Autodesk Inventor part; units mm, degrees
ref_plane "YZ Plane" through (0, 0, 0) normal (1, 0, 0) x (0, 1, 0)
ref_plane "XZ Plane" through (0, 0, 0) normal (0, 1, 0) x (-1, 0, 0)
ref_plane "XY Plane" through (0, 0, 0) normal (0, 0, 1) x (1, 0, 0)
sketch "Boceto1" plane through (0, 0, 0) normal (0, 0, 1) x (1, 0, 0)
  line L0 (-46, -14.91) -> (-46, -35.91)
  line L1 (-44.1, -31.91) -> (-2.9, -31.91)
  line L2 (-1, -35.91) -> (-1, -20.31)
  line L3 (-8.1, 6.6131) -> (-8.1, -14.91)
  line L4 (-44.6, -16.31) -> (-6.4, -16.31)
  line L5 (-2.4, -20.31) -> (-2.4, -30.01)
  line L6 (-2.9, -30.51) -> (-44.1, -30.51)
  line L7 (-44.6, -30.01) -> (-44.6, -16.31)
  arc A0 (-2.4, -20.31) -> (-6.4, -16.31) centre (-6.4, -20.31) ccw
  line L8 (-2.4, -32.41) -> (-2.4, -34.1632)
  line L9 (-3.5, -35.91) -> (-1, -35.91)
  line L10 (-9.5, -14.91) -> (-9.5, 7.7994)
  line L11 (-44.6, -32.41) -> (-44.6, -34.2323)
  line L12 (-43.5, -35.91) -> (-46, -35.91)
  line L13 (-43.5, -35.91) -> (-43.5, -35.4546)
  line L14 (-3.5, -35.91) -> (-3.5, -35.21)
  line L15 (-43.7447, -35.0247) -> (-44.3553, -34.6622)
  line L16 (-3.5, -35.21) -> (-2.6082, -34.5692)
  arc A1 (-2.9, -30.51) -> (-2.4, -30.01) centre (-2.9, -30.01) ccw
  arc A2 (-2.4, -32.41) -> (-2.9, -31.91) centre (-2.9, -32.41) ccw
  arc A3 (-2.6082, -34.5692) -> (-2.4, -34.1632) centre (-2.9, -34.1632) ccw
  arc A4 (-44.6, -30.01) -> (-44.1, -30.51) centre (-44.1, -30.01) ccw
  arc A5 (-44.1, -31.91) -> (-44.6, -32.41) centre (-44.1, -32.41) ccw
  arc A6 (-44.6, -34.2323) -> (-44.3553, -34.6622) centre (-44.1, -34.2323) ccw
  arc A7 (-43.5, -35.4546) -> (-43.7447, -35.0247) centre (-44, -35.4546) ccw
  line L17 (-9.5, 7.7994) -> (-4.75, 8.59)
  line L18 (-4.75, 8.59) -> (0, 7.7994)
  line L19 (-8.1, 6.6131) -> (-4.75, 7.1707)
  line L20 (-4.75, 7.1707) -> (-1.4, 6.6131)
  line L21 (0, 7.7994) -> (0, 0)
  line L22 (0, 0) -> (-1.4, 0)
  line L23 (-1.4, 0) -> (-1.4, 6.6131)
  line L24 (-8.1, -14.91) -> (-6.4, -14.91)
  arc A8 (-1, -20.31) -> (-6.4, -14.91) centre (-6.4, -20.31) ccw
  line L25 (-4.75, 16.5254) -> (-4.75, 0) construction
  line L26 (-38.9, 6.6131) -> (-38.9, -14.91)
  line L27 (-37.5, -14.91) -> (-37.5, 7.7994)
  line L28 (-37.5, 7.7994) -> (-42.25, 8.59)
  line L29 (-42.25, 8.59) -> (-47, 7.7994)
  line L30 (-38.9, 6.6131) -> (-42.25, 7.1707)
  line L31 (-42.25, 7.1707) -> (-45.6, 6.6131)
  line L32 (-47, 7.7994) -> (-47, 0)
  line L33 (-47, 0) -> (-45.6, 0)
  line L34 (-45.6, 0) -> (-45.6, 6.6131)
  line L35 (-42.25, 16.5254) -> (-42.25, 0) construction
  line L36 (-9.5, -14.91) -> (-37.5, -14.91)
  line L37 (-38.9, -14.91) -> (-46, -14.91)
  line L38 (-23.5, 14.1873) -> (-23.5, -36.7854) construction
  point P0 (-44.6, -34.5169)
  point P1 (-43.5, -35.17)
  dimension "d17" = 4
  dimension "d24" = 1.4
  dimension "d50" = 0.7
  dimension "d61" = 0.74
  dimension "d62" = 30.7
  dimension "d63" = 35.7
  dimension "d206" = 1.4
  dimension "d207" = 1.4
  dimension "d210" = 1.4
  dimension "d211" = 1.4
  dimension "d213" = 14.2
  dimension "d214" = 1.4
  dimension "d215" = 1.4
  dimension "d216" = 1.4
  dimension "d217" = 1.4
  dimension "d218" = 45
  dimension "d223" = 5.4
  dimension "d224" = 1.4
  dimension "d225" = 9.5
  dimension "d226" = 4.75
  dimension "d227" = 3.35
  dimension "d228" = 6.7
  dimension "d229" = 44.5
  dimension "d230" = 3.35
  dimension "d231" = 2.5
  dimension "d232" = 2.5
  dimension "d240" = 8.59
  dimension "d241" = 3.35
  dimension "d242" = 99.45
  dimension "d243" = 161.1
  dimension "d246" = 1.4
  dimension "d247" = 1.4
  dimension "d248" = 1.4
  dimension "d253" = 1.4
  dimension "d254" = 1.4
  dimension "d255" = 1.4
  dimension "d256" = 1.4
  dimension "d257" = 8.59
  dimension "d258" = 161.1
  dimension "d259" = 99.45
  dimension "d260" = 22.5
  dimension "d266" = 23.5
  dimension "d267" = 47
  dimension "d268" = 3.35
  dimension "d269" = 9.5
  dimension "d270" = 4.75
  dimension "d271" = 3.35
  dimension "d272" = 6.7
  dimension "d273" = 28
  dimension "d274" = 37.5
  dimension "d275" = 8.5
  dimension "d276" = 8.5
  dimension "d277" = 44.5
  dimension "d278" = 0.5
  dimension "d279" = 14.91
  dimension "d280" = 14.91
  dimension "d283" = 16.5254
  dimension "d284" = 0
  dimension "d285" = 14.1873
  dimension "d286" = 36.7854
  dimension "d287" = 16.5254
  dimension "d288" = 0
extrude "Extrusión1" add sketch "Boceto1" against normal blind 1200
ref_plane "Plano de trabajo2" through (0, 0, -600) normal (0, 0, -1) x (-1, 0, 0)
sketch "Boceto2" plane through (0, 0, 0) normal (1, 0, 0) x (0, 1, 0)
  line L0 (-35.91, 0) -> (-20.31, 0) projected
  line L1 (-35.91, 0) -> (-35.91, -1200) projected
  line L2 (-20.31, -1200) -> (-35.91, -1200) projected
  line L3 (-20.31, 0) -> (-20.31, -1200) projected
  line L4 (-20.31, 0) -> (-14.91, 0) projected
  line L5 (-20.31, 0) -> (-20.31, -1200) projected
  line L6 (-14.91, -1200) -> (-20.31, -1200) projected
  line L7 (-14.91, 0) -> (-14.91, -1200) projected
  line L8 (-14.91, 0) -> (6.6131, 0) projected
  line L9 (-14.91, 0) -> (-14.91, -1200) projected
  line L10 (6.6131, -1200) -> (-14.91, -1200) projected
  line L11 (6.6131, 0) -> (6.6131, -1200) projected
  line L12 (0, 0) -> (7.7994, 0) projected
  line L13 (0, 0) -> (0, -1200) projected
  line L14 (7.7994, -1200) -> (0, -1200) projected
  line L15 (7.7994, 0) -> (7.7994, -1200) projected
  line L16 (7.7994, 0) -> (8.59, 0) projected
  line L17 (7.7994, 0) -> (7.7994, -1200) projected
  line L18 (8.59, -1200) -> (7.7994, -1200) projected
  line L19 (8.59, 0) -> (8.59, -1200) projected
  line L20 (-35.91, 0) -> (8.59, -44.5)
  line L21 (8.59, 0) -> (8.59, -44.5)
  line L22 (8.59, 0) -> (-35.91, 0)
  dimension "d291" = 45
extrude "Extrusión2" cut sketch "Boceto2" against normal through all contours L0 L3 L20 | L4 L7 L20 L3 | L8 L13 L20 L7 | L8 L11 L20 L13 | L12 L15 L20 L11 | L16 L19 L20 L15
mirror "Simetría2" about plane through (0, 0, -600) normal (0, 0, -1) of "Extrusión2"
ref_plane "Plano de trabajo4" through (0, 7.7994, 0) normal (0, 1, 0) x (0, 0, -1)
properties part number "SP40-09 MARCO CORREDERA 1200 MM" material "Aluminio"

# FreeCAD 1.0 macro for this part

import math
import FreeCAD as App
import Part
import Sketcher

V = App.Vector
Q = App.Units.Quantity

doc = App.newDocument("Part")
body = doc.addObject("PartDesign::Body", "Body")

# Sketch on XY plane
sketch1 = body.newObject("Sketcher::SketchObject", "Sketch")
sketch1.AttachmentSupport = (doc.getObject("XY_Plane"), [""])
sketch1.MapMode = "FlatFace"
sketch1.addGeometry(Part.LineSegment(V(-38.9, -14.91, 0), V(-46, -14.91, 0)), False)
sketch1.addGeometry(Part.LineSegment(V(-46, -14.91, 0), V(-46, -35.91, 0)), False)
sketch1.addGeometry(Part.LineSegment(V(-46, -35.91, 0), V(-43.5, -35.91, 0)), False)
sketch1.addGeometry(Part.LineSegment(V(-43.5, -35.91, 0), V(-43.5, -35.45, 0)), False)
sketch1.addGeometry(Part.ArcOfCircle(Part.Circle(V(-44, -35.45, 0), V(0, 0, 1), 0.5), math.radians(0), math.radians(59)), False)
sketch1.addGeometry(Part.LineSegment(V(-43.74, -35.02, 0), V(-44.36, -34.66, 0)), False)
sketch1.addGeometry(Part.ArcOfCircle(Part.Circle(V(-44.1, -34.23, 0), V(0, 0, 1), 0.5), math.radians(180), math.radians(239)), False)
sketch1.addGeometry(Part.LineSegment(V(-44.6, -34.23, 0), V(-44.6, -32.41, 0)), False)
sketch1.addGeometry(Part.ArcOfCircle(Part.Circle(V(-44.1, -32.41, 0), V(0, 0, 1), 0.5), math.radians(90), math.radians(180)), False)
sketch1.addGeometry(Part.LineSegment(V(-44.1, -31.91, 0), V(-2.9, -31.91, 0)), False)
sketch1.addGeometry(Part.ArcOfCircle(Part.Circle(V(-2.9, -32.41, 0), V(0, 0, 1), 0.5), math.radians(0), math.radians(90)), False)
sketch1.addGeometry(Part.LineSegment(V(-2.4, -32.41, 0), V(-2.4, -34.16, 0)), False)
sketch1.addGeometry(Part.ArcOfCircle(Part.Circle(V(-2.9, -34.16, 0), V(0, 0, 1), 0.5), math.radians(-54), math.radians(0)), False)
sketch1.addGeometry(Part.LineSegment(V(-2.61, -34.57, 0), V(-3.5, -35.21, 0)), False)
sketch1.addGeometry(Part.LineSegment(V(-3.5, -35.21, 0), V(-3.5, -35.91, 0)), False)
sketch1.addGeometry(Part.LineSegment(V(-3.5, -35.91, 0), V(-1, -35.91, 0)), False)
sketch1.addGeometry(Part.LineSegment(V(-1, -35.91, 0), V(-1, -20.31, 0)), False)
sketch1.addGeometry(Part.ArcOfCircle(Part.Circle(V(-6.4, -20.31, 0), V(0, 0, 1), 5.4), math.radians(0), math.radians(90)), False)
sketch1.addGeometry(Part.LineSegment(V(-6.4, -14.91, 0), V(-8.1, -14.91, 0)), False)
sketch1.addGeometry(Part.LineSegment(V(-8.1, -14.91, 0), V(-8.1, 6.61, 0)), False)
sketch1.addGeometry(Part.LineSegment(V(-8.1, 6.61, 0), V(-4.75, 7.17, 0)), False)
sketch1.addGeometry(Part.LineSegment(V(-4.75, 7.17, 0), V(-1.4, 6.61, 0)), False)
sketch1.addGeometry(Part.LineSegment(V(-1.4, 6.61, 0), V(-1.4, 0, 0)), False)
sketch1.addGeometry(Part.LineSegment(V(-1.4, 0, 0), V(0, 0, 0)), False)
sketch1.addGeometry(Part.LineSegment(V(0, 0, 0), V(0, 7.8, 0)), False)
sketch1.addGeometry(Part.LineSegment(V(0, 7.8, 0), V(-4.75, 8.59, 0)), False)
sketch1.addGeometry(Part.LineSegment(V(-4.75, 8.59, 0), V(-9.5, 7.8, 0)), False)
sketch1.addGeometry(Part.LineSegment(V(-9.5, 7.8, 0), V(-9.5, -14.91, 0)), False)
sketch1.addGeometry(Part.LineSegment(V(-9.5, -14.91, 0), V(-37.5, -14.91, 0)), False)
sketch1.addGeometry(Part.LineSegment(V(-37.5, -14.91, 0), V(-37.5, 7.8, 0)), False)
sketch1.addGeometry(Part.LineSegment(V(-37.5, 7.8, 0), V(-42.25, 8.59, 0)), False)
sketch1.addGeometry(Part.LineSegment(V(-42.25, 8.59, 0), V(-47, 7.8, 0)), False)
sketch1.addGeometry(Part.LineSegment(V(-47, 7.8, 0), V(-47, 0, 0)), False)
sketch1.addGeometry(Part.LineSegment(V(-47, 0, 0), V(-45.6, 0, 0)), False)
sketch1.addGeometry(Part.LineSegment(V(-45.6, 0, 0), V(-45.6, 6.61, 0)), False)
sketch1.addGeometry(Part.LineSegment(V(-45.6, 6.61, 0), V(-42.25, 7.17, 0)), False)
sketch1.addGeometry(Part.LineSegment(V(-42.25, 7.17, 0), V(-38.9, 6.61, 0)), False)
sketch1.addGeometry(Part.LineSegment(V(-38.9, 6.61, 0), V(-38.9, -14.91, 0)), False)
sketch1.addGeometry(Part.LineSegment(V(-44.6, -30.01, 0), V(-44.6, -16.31, 0)), False)
sketch1.addGeometry(Part.LineSegment(V(-44.6, -16.31, 0), V(-6.4, -16.31, 0)), False)
sketch1.addGeometry(Part.ArcOfCircle(Part.Circle(V(-6.4, -20.31, 0), V(0, 0, 1), 4), math.radians(0), math.radians(90)), False)
sketch1.addGeometry(Part.LineSegment(V(-2.4, -20.31, 0), V(-2.4, -30.01, 0)), False)
sketch1.addGeometry(Part.ArcOfCircle(Part.Circle(V(-2.9, -30.01, 0), V(0, 0, 1), 0.5), math.radians(-90), math.radians(0)), False)
sketch1.addGeometry(Part.LineSegment(V(-2.9, -30.51, 0), V(-44.1, -30.51, 0)), False)
sketch1.addGeometry(Part.ArcOfCircle(Part.Circle(V(-44.1, -30.01, 0), V(0, 0, 1), 0.5), math.radians(180), math.radians(270)), False)
sketch1.addConstraint(Sketcher.Constraint("Coincident", 0, 2, 1, 1))
sketch1.addConstraint(Sketcher.Constraint("Coincident", 1, 2, 2, 1))
sketch1.addConstraint(Sketcher.Constraint("Coincident", 2, 2, 3, 1))
sketch1.addConstraint(Sketcher.Constraint("Tangent", 3, 2, 4, 1))
sketch1.addConstraint(Sketcher.Constraint("Tangent", 4, 2, 5, 1))
sketch1.addConstraint(Sketcher.Constraint("Tangent", 5, 2, 6, 2))
sketch1.addConstraint(Sketcher.Constraint("Tangent", 6, 1, 7, 1))
sketch1.addConstraint(Sketcher.Constraint("Tangent", 7, 2, 8, 2))
sketch1.addConstraint(Sketcher.Constraint("Tangent", 8, 1, 9, 1))
sketch1.addConstraint(Sketcher.Constraint("Tangent", 9, 2, 10, 2))
sketch1.addConstraint(Sketcher.Constraint("Tangent", 10, 1, 11, 1))
sketch1.addConstraint(Sketcher.Constraint("Tangent", 11, 2, 12, 2))
sketch1.addConstraint(Sketcher.Constraint("Tangent", 12, 1, 13, 1))
sketch1.addConstraint(Sketcher.Constraint("Coincident", 13, 2, 14, 1))
sketch1.addConstraint(Sketcher.Constraint("Coincident", 14, 2, 15, 1))
sketch1.addConstraint(Sketcher.Constraint("Coincident", 15, 2, 16, 1))
sketch1.addConstraint(Sketcher.Constraint("Tangent", 16, 2, 17, 1))
sketch1.addConstraint(Sketcher.Constraint("Tangent", 17, 2, 18, 1))
sketch1.addConstraint(Sketcher.Constraint("Coincident", 18, 2, 19, 1))
sketch1.addConstraint(Sketcher.Constraint("Coincident", 19, 2, 20, 1))
sketch1.addConstraint(Sketcher.Constraint("Coincident", 20, 2, 21, 1))
sketch1.addConstraint(Sketcher.Constraint("Coincident", 21, 2, 22, 1))
sketch1.addConstraint(Sketcher.Constraint("Coincident", 22, 2, 23, 1))
sketch1.addConstraint(Sketcher.Constraint("Coincident", 23, 2, 24, 1))
sketch1.addConstraint(Sketcher.Constraint("Coincident", 24, 2, 25, 1))
sketch1.addConstraint(Sketcher.Constraint("Coincident", 25, 2, 26, 1))
sketch1.addConstraint(Sketcher.Constraint("Coincident", 26, 2, 27, 1))
sketch1.addConstraint(Sketcher.Constraint("Coincident", 27, 2, 28, 1))
sketch1.addConstraint(Sketcher.Constraint("Coincident", 28, 2, 29, 1))
sketch1.addConstraint(Sketcher.Constraint("Coincident", 29, 2, 30, 1))
sketch1.addConstraint(Sketcher.Constraint("Coincident", 30, 2, 31, 1))
sketch1.addConstraint(Sketcher.Constraint("Coincident", 31, 2, 32, 1))
sketch1.addConstraint(Sketcher.Constraint("Coincident", 32, 2, 33, 1))
sketch1.addConstraint(Sketcher.Constraint("Coincident", 33, 2, 34, 1))
sketch1.addConstraint(Sketcher.Constraint("Coincident", 34, 2, 35, 1))
sketch1.addConstraint(Sketcher.Constraint("Coincident", 35, 2, 36, 1))
sketch1.addConstraint(Sketcher.Constraint("Coincident", 36, 2, 37, 1))
sketch1.addConstraint(Sketcher.Constraint("Coincident", 37, 2, 0, 1))
sketch1.addConstraint(Sketcher.Constraint("Coincident", 38, 2, 39, 1))
sketch1.addConstraint(Sketcher.Constraint("Tangent", 39, 2, 40, 2))
sketch1.addConstraint(Sketcher.Constraint("Tangent", 40, 1, 41, 1))
sketch1.addConstraint(Sketcher.Constraint("Tangent", 41, 2, 42, 2))
sketch1.addConstraint(Sketcher.Constraint("Tangent", 42, 1, 43, 1))
sketch1.addConstraint(Sketcher.Constraint("Tangent", 43, 2, 44, 2))
sketch1.addConstraint(Sketcher.Constraint("Tangent", 44, 1, 38, 1))
sketch1.addConstraint(Sketcher.Constraint("Horizontal", 0))
sketch1.addConstraint(Sketcher.Constraint("Vertical", 1))
sketch1.addConstraint(Sketcher.Constraint("Horizontal", 2))
sketch1.addConstraint(Sketcher.Constraint("Vertical", 3))
sketch1.addConstraint(Sketcher.Constraint("Vertical", 7))
sketch1.addConstraint(Sketcher.Constraint("Horizontal", 9))
sketch1.addConstraint(Sketcher.Constraint("Vertical", 11))
sketch1.addConstraint(Sketcher.Constraint("Vertical", 14))
sketch1.addConstraint(Sketcher.Constraint("Horizontal", 15))
sketch1.addConstraint(Sketcher.Constraint("Vertical", 16))
sketch1.addConstraint(Sketcher.Constraint("Horizontal", 18))
sketch1.addConstraint(Sketcher.Constraint("Vertical", 19))
sketch1.addConstraint(Sketcher.Constraint("Vertical", 22))
sketch1.addConstraint(Sketcher.Constraint("Horizontal", 23))
sketch1.addConstraint(Sketcher.Constraint("Vertical", 24))
sketch1.addConstraint(Sketcher.Constraint("Vertical", 27))
sketch1.addConstraint(Sketcher.Constraint("Horizontal", 28))
sketch1.addConstraint(Sketcher.Constraint("Vertical", 29))
sketch1.addConstraint(Sketcher.Constraint("Vertical", 32))
sketch1.addConstraint(Sketcher.Constraint("Horizontal", 33))
sketch1.addConstraint(Sketcher.Constraint("Vertical", 34))
sketch1.addConstraint(Sketcher.Constraint("Vertical", 37))
sketch1.addConstraint(Sketcher.Constraint("Vertical", 38))
sketch1.addConstraint(Sketcher.Constraint("Horizontal", 39))
sketch1.addConstraint(Sketcher.Constraint("Vertical", 41))
sketch1.addConstraint(Sketcher.Constraint("Horizontal", 43))
sketch1.addConstraint(Sketcher.Constraint("Coincident", 23, 2, -1, 1))
sketch1.addConstraint(Sketcher.Constraint("Coincident", 40, 3, 17, 3))
sketch1.addConstraint(Sketcher.Constraint("Equal", 4, 6))
sketch1.addConstraint(Sketcher.Constraint("Equal", 6, 8))
sketch1.addConstraint(Sketcher.Constraint("Equal", 8, 10))
sketch1.addConstraint(Sketcher.Constraint("Equal", 10, 12))
sketch1.addConstraint(Sketcher.Constraint("Equal", 12, 42))
sketch1.addConstraint(Sketcher.Constraint("Equal", 42, 44))
sketch1.addConstraint(Sketcher.Constraint("PointOnObject", 32, 2, -1))
sketch1.addConstraint(Sketcher.Constraint("Parallel", 21, 25))
sketch1.addConstraint(Sketcher.Constraint("Parallel", 20, 26))
sketch1.addConstraint(Sketcher.Constraint("Parallel", 25, 30))
sketch1.addConstraint(Sketcher.Constraint("Parallel", 26, 31))
sketch1.addConstraint(Sketcher.Constraint("Parallel", 31, 35))
sketch1.addConstraint(Sketcher.Constraint("Parallel", 30, 36))
sketch1.addConstraint(Sketcher.Constraint("Horizontal", 2, 2, 14, 2))
sketch1.addConstraint(Sketcher.Constraint("Horizontal", 0, 2, 17, 2))
sketch1.addConstraint(Sketcher.Constraint("Horizontal", 19, 2, 21, 2))
sketch1.addConstraint(Sketcher.Constraint("Horizontal", 24, 2, 26, 2))
sketch1.addConstraint(Sketcher.Constraint("Horizontal", 18, 2, 27, 2))
sketch1.addConstraint(Sketcher.Constraint("Horizontal", 26, 2, 29, 2))
sketch1.addConstraint(Sketcher.Constraint("Horizontal", 25, 2, 30, 2))
sketch1.addConstraint(Sketcher.Constraint("Horizontal", 29, 2, 31, 2))
sketch1.addConstraint(Sketcher.Constraint("Horizontal", 21, 2, 34, 2))
sketch1.addConstraint(Sketcher.Constraint("Horizontal", 20, 2, 35, 2))
sketch1.addConstraint(Sketcher.Constraint("Horizontal", 34, 2, 36, 2))
sketch1.addConstraint(Sketcher.Constraint("Vertical", 12, 3, 42, 3))
sketch1.addConstraint(Sketcher.Constraint("Vertical", 8, 3, 44, 3))
sketch1.addConstraint(Sketcher.Constraint("Vertical", 20, 2, 25, 2))
sketch1.addConstraint(Sketcher.Constraint("Vertical", 30, 2, 35, 2))
sketch1.addConstraint(Sketcher.Constraint("Equal", 2, 15))
sketch1.addConstraint(Sketcher.Constraint("Equal", 23, 33))
sketch1.addConstraint(Sketcher.Constraint("Radius", 40, Q("4 mm")))
sketch1.addConstraint(Sketcher.Constraint("Radius", 4, Q("0.5 mm")))
sketch1.addConstraint(Sketcher.Constraint("Radius", 17, Q("5.4 mm")))
sketch1.addConstraint(Sketcher.Constraint("DistanceX", 28, 2, 28, 1, Q("28 mm")))
sketch1.addConstraint(Sketcher.Constraint("DistanceX", 2, 1, 2, 2, Q("2.5 mm")))
sketch1.addConstraint(Sketcher.Constraint("DistanceX", 23, 1, 23, 2, Q("1.4 mm")))
sketch1.addConstraint(Sketcher.Constraint("DistanceY", 14, 2, 14, 1, Q("0.7 mm")))
sketch1.addConstraint(Sketcher.Constraint("DistanceX", 31, 2, -1, 1, Q("47 mm")))
sketch1.addConstraint(Sketcher.Constraint("DistanceX", 27, 2, 16, 2, Q("8.5 mm")))
sketch1.addConstraint(Sketcher.Constraint("DistanceX", 0, 2, 28, 2, Q("8.5 mm")))
sketch1.addConstraint(Sketcher.Constraint("DistanceY", 0, 2, 30, 2, Q("23.5 mm")))
sketch1.addConstraint(Sketcher.Constraint("DistanceX", 0, 2, 38, 2, Q("1.4 mm")))
sketch1.addConstraint(Sketcher.Constraint("DistanceY", 9, 2, 42, 1, Q("1.4 mm")))
sketch1.addConstraint(Sketcher.Constraint("DistanceY", 1, 2, 1, 1, Q("21 mm")))
sketch1.addConstraint(Sketcher.Constraint("DistanceY", 0, 2, -1, 1, Q("14.91 mm")))
sketch1.addConstraint(Sketcher.Constraint("DistanceY", 38, 1, 38, 2, Q("13.7 mm")))
sketch1.addConstraint(Sketcher.Constraint("Angle", 13, Q("-144.301 deg")))
sketch1.addConstraint(Sketcher.Constraint("Angle", 20, Q("9.45 deg")))
sketch1.addConstraint(Sketcher.Constraint("Distance", 5, Q("0.71 mm")))
sketch1.addConstraint(Sketcher.Constraint("DistanceY", 19, 1, 19, 2, Q("21.523 mm")))
sketch1.addConstraint(Sketcher.Constraint("DistanceY", 3, 1, 3, 2, Q("0.4554 mm")))
pad1 = body.newObject("PartDesign::Pad", "Pad")
pad1.Profile = sketch1
pad1.Length = 1200
pad1.Reversed = True

# Sketch on YZ plane
sketch2 = body.newObject("Sketcher::SketchObject", "Sketch001")
sketch2.AttachmentSupport = (doc.getObject("YZ_Plane"), [""])
sketch2.MapMode = "FlatFace"
sketch2.addGeometry(Part.LineSegment(V(-36, 0, 0), V(9, -44, 0)), False)
sketch2.addGeometry(Part.LineSegment(V(9, -44, 0), V(9, 0, 0)), False)
sketch2.addGeometry(Part.LineSegment(V(9, 0, 0), V(-36, 0, 0)), False)
sketch2.addConstraint(Sketcher.Constraint("Coincident", 0, 2, 1, 1))
sketch2.addConstraint(Sketcher.Constraint("Coincident", 1, 2, 2, 1))
sketch2.addConstraint(Sketcher.Constraint("Coincident", 2, 2, 0, 1))
sketch2.addConstraint(Sketcher.Constraint("Vertical", 1))
sketch2.addConstraint(Sketcher.Constraint("Horizontal", 2))
sketch2.addConstraint(Sketcher.Constraint("PointOnObject", 1, 2, -1))
sketch2.addConstraint(Sketcher.Constraint("Equal", 2, 1))
sketch2.addConstraint(Sketcher.Constraint("DistanceX", 2, 2, 2, 1, Q("44.5 mm")))
sketch2.addConstraint(Sketcher.Constraint("DistanceX", -1, 1, 0, 2, Q("8.59 mm")))
pocket1 = body.newObject("PartDesign::Pocket", "Pocket")
pocket1.Profile = sketch2
pocket1.Type = "ThroughAll"
doc.recompute()

datumplane = body.newObject("PartDesign::Plane", "DatumPlane")
datumplane.AttachmentSupport = (doc.getObject("XY_Plane"), [""])
datumplane.MapMode = "FlatFace"
datumplane.AttachmentOffset = App.Placement(V(0, 0, -600), App.Rotation())
mirrored = body.newObject("PartDesign::Mirrored", "Mirrored")
mirrored.Originals = [pocket1]
mirrored.MirrorPlane = (datumplane, [""])
body.Tip = mirrored

doc.recompute()
